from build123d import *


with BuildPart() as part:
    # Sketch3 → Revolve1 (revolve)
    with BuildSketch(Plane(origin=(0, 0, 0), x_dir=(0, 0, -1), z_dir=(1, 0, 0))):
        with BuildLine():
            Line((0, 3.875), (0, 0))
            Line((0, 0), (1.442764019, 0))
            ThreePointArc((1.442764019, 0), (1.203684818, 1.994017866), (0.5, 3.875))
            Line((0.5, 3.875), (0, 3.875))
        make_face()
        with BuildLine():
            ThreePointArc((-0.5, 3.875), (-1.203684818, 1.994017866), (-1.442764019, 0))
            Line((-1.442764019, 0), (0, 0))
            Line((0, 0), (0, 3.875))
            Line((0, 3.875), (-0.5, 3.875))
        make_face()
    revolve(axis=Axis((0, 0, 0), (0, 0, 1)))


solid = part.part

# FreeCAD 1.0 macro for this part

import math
import FreeCAD as App
import Part
import Sketcher
from FreeCAD import Vector

doc = App.newDocument("Part")
body = doc.addObject("PartDesign::Body", "Body")

# Sketch on YZ plane
sketch1 = body.newObject("Sketcher::SketchObject", "Sketch")
sketch1.AttachmentSupport = (doc.getObject("YZ_Plane"), [""])
sketch1.MapMode = "FlatFace"
sketch1.addGeometry([
    Part.ArcOfCircle(Part.Circle(Vector(0, 7, 0), Vector(0, 0, 1), 8.4), math.radians(-90), math.radians(-63)),
    Part.LineSegment(Vector(3.9, -0.5, 0), Vector(3.9, 0.5, 0)),
    Part.ArcOfCircle(Part.Circle(Vector(0, -7, 0), Vector(0, 0, 1), 8.4), math.radians(63), math.radians(90)),
    Part.LineSegment(Vector(0, 1.4, 0), Vector(0, -1.4, 0)),
], False)
sketch1.addConstraint([
    Sketcher.Constraint("Coincident", 0, 2, 1, 1),
    Sketcher.Constraint("Coincident", 1, 2, 2, 1),
    Sketcher.Constraint("Coincident", 2, 2, 3, 1),
    Sketcher.Constraint("Coincident", 3, 2, 0, 1),
    Sketcher.Constraint("Vertical", 1),
    Sketcher.Constraint("Vertical", 3),
    Sketcher.Constraint("Equal", 0, 2),
    Sketcher.Constraint("Symmetric", 0, 3, 2, 3, -1, 1),
    Sketcher.Constraint("PointOnObject", 0, 3, -2),
    Sketcher.Constraint("PointOnObject", 2, 2, -2),
    Sketcher.Constraint("DistanceY", 1, 1, 1, 2, 1.0),
    Sketcher.Constraint("Radius", 0, 8.435),
    Sketcher.Constraint("DistanceX", -1, 1, 0, 2, 3.875),
])
revolution = body.newObject("PartDesign::Revolution", "Revolution")
revolution.Profile = sketch1
revolution.ReferenceAxis = (sketch1, ["V_Axis"])
revolution.Angle = 360

doc.recompute()
